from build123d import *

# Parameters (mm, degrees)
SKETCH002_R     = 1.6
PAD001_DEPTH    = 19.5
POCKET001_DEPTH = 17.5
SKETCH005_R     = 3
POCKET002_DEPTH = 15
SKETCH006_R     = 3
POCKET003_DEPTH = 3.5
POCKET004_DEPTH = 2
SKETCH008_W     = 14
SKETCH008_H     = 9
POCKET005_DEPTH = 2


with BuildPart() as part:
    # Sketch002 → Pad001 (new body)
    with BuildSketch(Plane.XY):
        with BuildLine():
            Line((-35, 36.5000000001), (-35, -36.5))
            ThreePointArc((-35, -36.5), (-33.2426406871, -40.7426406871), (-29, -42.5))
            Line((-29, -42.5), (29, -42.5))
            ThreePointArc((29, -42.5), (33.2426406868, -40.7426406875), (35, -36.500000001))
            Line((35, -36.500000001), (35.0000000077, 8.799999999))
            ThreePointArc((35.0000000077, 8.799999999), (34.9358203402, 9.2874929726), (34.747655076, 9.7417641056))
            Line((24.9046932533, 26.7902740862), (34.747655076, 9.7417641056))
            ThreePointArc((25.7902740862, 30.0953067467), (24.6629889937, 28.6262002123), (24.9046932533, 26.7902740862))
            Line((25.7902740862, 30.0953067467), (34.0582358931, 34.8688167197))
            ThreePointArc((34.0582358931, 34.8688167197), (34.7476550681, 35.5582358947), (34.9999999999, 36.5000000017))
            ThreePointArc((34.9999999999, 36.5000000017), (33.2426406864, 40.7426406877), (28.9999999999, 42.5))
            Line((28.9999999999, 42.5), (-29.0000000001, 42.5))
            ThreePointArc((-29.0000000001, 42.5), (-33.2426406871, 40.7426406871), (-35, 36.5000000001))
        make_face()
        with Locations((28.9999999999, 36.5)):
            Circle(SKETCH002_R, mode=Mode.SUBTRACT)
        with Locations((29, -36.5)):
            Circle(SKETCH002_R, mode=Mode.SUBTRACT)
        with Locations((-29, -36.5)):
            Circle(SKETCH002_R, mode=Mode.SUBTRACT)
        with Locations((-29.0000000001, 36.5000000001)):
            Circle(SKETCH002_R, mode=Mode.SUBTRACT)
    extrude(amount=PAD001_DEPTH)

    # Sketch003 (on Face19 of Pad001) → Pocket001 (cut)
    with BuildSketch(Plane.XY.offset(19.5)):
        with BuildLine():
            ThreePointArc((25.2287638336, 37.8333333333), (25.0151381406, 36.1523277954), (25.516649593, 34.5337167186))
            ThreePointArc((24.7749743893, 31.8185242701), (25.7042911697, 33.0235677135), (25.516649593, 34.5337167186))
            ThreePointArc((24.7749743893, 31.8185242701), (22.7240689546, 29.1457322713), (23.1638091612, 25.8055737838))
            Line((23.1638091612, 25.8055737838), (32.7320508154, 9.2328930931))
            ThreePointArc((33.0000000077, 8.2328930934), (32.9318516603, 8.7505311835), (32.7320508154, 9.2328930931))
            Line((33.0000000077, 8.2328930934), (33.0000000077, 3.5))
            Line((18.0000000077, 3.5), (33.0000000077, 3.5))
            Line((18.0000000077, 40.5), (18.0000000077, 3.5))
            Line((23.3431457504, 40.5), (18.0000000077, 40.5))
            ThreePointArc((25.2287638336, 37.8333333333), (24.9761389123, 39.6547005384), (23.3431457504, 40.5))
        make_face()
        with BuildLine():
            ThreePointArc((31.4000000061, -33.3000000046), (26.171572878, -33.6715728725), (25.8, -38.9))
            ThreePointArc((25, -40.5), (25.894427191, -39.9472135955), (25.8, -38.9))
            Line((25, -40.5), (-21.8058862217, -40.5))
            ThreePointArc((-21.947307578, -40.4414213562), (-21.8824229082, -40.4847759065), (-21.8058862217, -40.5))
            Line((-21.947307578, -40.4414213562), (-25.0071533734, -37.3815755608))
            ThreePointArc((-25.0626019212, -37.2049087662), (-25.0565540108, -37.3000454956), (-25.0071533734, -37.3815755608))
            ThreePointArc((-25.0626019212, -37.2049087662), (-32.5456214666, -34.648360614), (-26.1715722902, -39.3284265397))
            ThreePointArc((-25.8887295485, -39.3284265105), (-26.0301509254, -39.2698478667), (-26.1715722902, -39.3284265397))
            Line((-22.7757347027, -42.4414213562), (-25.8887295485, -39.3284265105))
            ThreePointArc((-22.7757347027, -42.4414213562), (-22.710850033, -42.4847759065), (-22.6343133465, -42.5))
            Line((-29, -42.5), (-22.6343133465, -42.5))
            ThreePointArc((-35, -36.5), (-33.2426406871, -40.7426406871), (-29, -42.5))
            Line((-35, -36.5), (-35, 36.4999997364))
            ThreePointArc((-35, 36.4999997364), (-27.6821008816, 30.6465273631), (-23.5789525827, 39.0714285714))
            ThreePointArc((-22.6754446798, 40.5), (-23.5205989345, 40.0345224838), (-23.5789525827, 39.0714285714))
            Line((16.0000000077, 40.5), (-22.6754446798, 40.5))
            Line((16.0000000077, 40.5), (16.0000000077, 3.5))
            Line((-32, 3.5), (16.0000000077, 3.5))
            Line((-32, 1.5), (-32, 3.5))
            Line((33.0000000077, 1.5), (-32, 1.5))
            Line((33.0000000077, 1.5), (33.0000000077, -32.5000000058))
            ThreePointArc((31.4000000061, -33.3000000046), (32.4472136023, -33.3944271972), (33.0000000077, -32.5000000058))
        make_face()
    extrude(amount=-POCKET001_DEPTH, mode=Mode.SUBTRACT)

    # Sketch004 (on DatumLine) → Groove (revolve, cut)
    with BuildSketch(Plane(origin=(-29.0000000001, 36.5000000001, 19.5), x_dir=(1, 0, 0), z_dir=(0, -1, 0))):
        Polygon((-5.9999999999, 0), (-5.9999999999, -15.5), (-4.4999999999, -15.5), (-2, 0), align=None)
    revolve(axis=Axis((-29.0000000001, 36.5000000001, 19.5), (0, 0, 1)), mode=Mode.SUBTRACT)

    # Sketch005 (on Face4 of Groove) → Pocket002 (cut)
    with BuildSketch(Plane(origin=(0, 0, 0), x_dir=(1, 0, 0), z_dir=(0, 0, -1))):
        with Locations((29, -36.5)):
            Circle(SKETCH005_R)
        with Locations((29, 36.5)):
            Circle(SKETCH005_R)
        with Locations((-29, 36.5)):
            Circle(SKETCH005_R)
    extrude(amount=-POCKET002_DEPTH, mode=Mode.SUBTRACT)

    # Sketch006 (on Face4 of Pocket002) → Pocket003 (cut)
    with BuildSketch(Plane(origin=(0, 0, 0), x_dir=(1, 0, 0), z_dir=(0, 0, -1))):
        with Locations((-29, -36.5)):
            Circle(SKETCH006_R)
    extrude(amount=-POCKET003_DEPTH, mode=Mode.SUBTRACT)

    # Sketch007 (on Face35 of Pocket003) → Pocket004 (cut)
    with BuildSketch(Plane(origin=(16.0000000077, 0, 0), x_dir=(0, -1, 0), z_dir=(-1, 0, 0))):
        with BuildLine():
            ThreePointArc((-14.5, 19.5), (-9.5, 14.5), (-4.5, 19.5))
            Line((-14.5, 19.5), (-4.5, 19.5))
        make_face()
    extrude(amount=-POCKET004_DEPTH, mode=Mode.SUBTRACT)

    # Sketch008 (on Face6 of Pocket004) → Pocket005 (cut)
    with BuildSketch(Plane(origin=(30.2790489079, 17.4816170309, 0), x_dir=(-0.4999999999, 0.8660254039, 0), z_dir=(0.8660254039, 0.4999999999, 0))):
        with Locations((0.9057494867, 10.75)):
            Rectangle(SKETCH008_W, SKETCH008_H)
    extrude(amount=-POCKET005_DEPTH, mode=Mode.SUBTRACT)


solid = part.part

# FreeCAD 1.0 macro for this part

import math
import FreeCAD as App
import Part
import Sketcher

V = App.Vector
Q = App.Units.Quantity

doc = App.newDocument("Part")
body = doc.addObject("PartDesign::Body", "Body")

# Sketch on XY plane
sketch1 = body.newObject("Sketcher::SketchObject", "Sketch")
sketch1.AttachmentSupport = (doc.getObject("XY_Plane"), [""])
sketch1.MapMode = "FlatFace"
sketch1.addGeometry([
    Part.LineSegment(V(-35, 36.5, 0), V(-35, -36.5, 0)),  # 0
    Part.ArcOfCircle(Part.Circle(V(-29, -36.5, 0), V(0, 0, 1), 6), math.radians(180), math.radians(270)),  # 1
    Part.LineSegment(V(-29, -42.5, 0), V(29, -42.5, 0)),  # 2
    Part.ArcOfCircle(Part.Circle(V(29, -36.5, 0), V(0, 0, 1), 6), math.radians(-90), math.radians(0)),  # 3
    Part.LineSegment(V(35, -36.5, 0), V(35, 8.8, 0)),  # 4
    Part.ArcOfCircle(Part.Circle(V(33.1, 8.8, 0), V(0, 0, 1), 1.9), math.radians(0), math.radians(30)),  # 5
    Part.LineSegment(V(34.7, 9.7, 0), V(24.9, 26.8, 0)),  # 6
    Part.ArcOfCircle(Part.Circle(V(27, 28, 0), V(0, 0, 1), 2.4), math.radians(120), math.radians(210)),  # 7
    Part.LineSegment(V(25.8, 30.1, 0), V(34.1, 34.9, 0)),  # 8
    Part.ArcOfCircle(Part.Circle(V(33.1, 36.5, 0), V(0, 0, 1), 1.9), math.radians(-60), math.radians(0)),  # 9
    Part.ArcOfCircle(Part.Circle(V(29, 36.5, 0), V(0, 0, 1), 6), math.radians(0), math.radians(90)),  # 10
    Part.LineSegment(V(29, 42.5, 0), V(-29, 42.5, 0)),  # 11
    Part.ArcOfCircle(Part.Circle(V(-29, 36.5, 0), V(0, 0, 1), 6), math.radians(90), math.radians(180)),  # 12
    Part.Circle(V(-29, -36.5, 0), V(0, 0, 1), 1.6),  # 13
    Part.Circle(V(29, -36.5, 0), V(0, 0, 1), 1.6),  # 14
    Part.Circle(V(-29, 36.5, 0), V(0, 0, 1), 1.6),  # 15
    Part.Circle(V(29, 36.5, 0), V(0, 0, 1), 1.6),  # 16
], False)
sketch1.addConstraint([
    Sketcher.Constraint("Tangent", 0, 2, 1, 1),
    Sketcher.Constraint("Tangent", 1, 2, 2, 1),
    Sketcher.Constraint("Tangent", 2, 2, 3, 1),
    Sketcher.Constraint("Tangent", 3, 2, 4, 1),
    Sketcher.Constraint("Tangent", 4, 2, 5, 1),
    Sketcher.Constraint("Tangent", 5, 2, 6, 1),
    Sketcher.Constraint("Tangent", 6, 2, 7, 2),
    Sketcher.Constraint("Tangent", 7, 1, 8, 1),
    Sketcher.Constraint("Tangent", 8, 2, 9, 1),
    Sketcher.Constraint("Tangent", 9, 2, 10, 1),
    Sketcher.Constraint("Tangent", 10, 2, 11, 1),
    Sketcher.Constraint("Tangent", 11, 2, 12, 1),
    Sketcher.Constraint("Tangent", 12, 2, 0, 1),
    Sketcher.Constraint("Vertical", 0),
    Sketcher.Constraint("Horizontal", 2),
    Sketcher.Constraint("Vertical", 4),
    Sketcher.Constraint("Horizontal", 11),
    Sketcher.Constraint("Coincident", 13, 3, 1, 3),
    Sketcher.Constraint("Coincident", 14, 3, 3, 3),
    Sketcher.Constraint("Coincident", 15, 3, 12, 3),
    Sketcher.Constraint("Coincident", 16, 3, 10, 3),
    Sketcher.Constraint("Equal", 1, 3),
    Sketcher.Constraint("Equal", 5, 9),
    Sketcher.Constraint("Equal", 3, 10),
    Sketcher.Constraint("Equal", 10, 12),
    Sketcher.Constraint("Equal", 13, 14),
    Sketcher.Constraint("Equal", 14, 15),
    Sketcher.Constraint("Equal", 15, 16),
    Sketcher.Constraint("Symmetric", 1, 3, 10, 3, -1, 1),
    Sketcher.Constraint("Symmetric", 3, 2, 9, 2, -1),
    Sketcher.Constraint("Perpendicular", 6, 8),
    Sketcher.Constraint("Radius", 1, Q("6 mm")),
    Sketcher.Constraint("Diameter", 13, Q("3.2 mm")),
    Sketcher.Constraint("DistanceX", 2, 1, 2, 2, Q("58 mm")),
    Sketcher.Constraint("DistanceY", 0, 2, 0, 1, Q("73 mm")),
    Sketcher.Constraint("Angle", 6, Q("120 deg")),
    Sketcher.Constraint("DistanceY", 4, 1, 4, 2, Q("45.3 mm")),
    Sketcher.Constraint("DistanceX", -1, 1, 7, 3, Q("27 mm")),
    Sketcher.Constraint("DistanceY", -1, 1, 7, 3, Q("28 mm")),
])
pad1 = body.newObject("PartDesign::Pad", "Pad")
pad1.Profile = sketch1
pad1.Length = 19.5

# Sketch on XY plane
sketch2 = body.newObject("Sketcher::SketchObject", "Sketch001")
sketch2.AttachmentSupport = (doc.getObject("XY_Plane"), [""])
sketch2.MapMode = "FlatFace"
sketch2.AttachmentOffset = App.Placement(V(0, 0, 19.5), App.Rotation())
sketch2.addGeometry([
    Part.ArcOfCircle(Part.Circle(V(29, 36.5, 0), V(0, 0, 1), 4), math.radians(160.528779), math.radians(209.443879)),  # 0
    Part.ArcOfCircle(Part.Circle(V(23.343146, 38.5, 0), V(0, 0, 1), 2), math.radians(-19.471221), math.radians(90)),  # 1
    Part.LineSegment(V(23.343146, 40.5, 0), V(18, 40.5, 0)),  # 2
    Part.LineSegment(V(18, 40.5, 0), V(18, 3.5, 0)),  # 3
    Part.LineSegment(V(18, 3.5, 0), V(33, 3.5, 0)),  # 4
    Part.LineSegment(V(33, 3.5, 0), V(33, 8.232893, 0)),  # 5
    Part.ArcOfCircle(Part.Circle(V(31, 8.232893, 0), V(0, 0, 1), 2), math.radians(0), math.radians(30)),  # 6
    Part.LineSegment(V(32.732051, 9.232893, 0), V(23.163809, 25.805574, 0)),  # 7
    Part.ArcOfCircle(Part.Circle(V(26.975867, 28.006466, 0), V(0, 0, 1), 4.401785), math.radians(120), math.radians(210)),  # 8
    Part.ArcOfCircle(Part.Circle(V(23.774974, 33.550575, 0), V(0, 0, 1), 2), math.radians(-60), math.radians(29.443879)),  # 9
    Part.ArcOfCircle(Part.Circle(V(29, -36.5, 0), V(0, 0, 1), 4), math.radians(53.130102), math.radians(216.869898)),  # 10
    Part.ArcOfCircle(Part.Circle(V(32, -32.5, 0), V(0, 0, 1), 1), math.radians(-126.869898), math.radians(0)),  # 11
    Part.LineSegment(V(33, -32.5, 0), V(33, 1.5, 0)),  # 12
    Part.LineSegment(V(33, 1.5, 0), V(-32, 1.5, 0)),  # 13
    Part.LineSegment(V(-32, 1.5, 0), V(-32, 3.5, 0)),  # 14
    Part.LineSegment(V(-32, 3.5, 0), V(16, 3.5, 0)),  # 15
    Part.LineSegment(V(16, 3.5, 0), V(16, 40.5, 0)),  # 16
    Part.LineSegment(V(16, 40.5, 0), V(-22.675445, 40.5, 0)),  # 17
    Part.ArcOfCircle(Part.Circle(V(-22.675445, 39.5, 0), V(0, 0, 1), 1), math.radians(90), math.radians(205.376934)),  # 18
    Part.ArcOfCircle(Part.Circle(V(-29, 36.5, 0), V(0, 0, 1), 6), math.radians(-179.999997), math.radians(25.376934)),  # 19
    Part.LineSegment(V(-35, 36.5, 0), V(-35, -36.5, 0)),  # 20
    Part.ArcOfCircle(Part.Circle(V(-29, -36.5, 0), V(0, 0, 1), 6), math.radians(180), math.radians(270)),  # 21
    Part.LineSegment(V(-29, -42.5, 0), V(-22.634313, -42.5, 0)),  # 22
    Part.ArcOfCircle(Part.Circle(V(-22.634313, -42.3, 0), V(0, 0, 1), 0.2), math.radians(-135), math.radians(-90)),  # 23
    Part.LineSegment(V(-22.775735, -42.441421, 0), V(-25.88873, -39.328427, 0)),  # 24
    Part.ArcOfCircle(Part.Circle(V(-26.030151, -39.469848, 0), V(0, 0, 1), 0.2), math.radians(45), math.radians(135.000012)),  # 25
    Part.ArcOfCircle(Part.Circle(V(-29, -36.5, 0), V(0, 0, 1), 4), math.radians(-10.150081), math.radians(315.000012)),  # 26
    Part.ArcOfCircle(Part.Circle(V(-24.865732, -37.240154, 0), V(0, 0, 1), 0.2), math.radians(169.849919), math.radians(225)),  # 27
    Part.LineSegment(V(-25.007153, -37.381576, 0), V(-21.947308, -40.441421, 0)),  # 28
    Part.ArcOfCircle(Part.Circle(V(-21.805886, -40.3, 0), V(0, 0, 1), 0.2), math.radians(-135), math.radians(-90)),  # 29
    Part.LineSegment(V(-21.805886, -40.5, 0), V(25, -40.5, 0)),  # 30
    Part.ArcOfCircle(Part.Circle(V(25, -39.5, 0), V(0, 0, 1), 1), math.radians(-90), math.radians(36.869898)),  # 31
], False)
sketch2.addConstraint([
    Sketcher.Constraint("Coincident", 0, 1, 1, 1),
    Sketcher.Constraint("Coincident", 1, 2, 2, 1),
    Sketcher.Constraint("Coincident", 2, 2, 3, 1),
    Sketcher.Constraint("Coincident", 3, 2, 4, 1),
    Sketcher.Constraint("Coincident", 4, 2, 5, 1),
    Sketcher.Constraint("Coincident", 5, 2, 6, 1),
    Sketcher.Constraint("Coincident", 6, 2, 7, 1),
    Sketcher.Constraint("Coincident", 7, 2, 8, 2),
    Sketcher.Constraint("Coincident", 8, 1, 9, 1),
    Sketcher.Constraint("Coincident", 9, 2, 0, 2),
    Sketcher.Constraint("Coincident", 10, 1, 11, 1),
    Sketcher.Constraint("Coincident", 11, 2, 12, 1),
    Sketcher.Constraint("Coincident", 12, 2, 13, 1),
    Sketcher.Constraint("Coincident", 13, 2, 14, 1),
    Sketcher.Constraint("Coincident", 14, 2, 15, 1),
    Sketcher.Constraint("Coincident", 15, 2, 16, 1),
    Sketcher.Constraint("Coincident", 16, 2, 17, 1),
    Sketcher.Constraint("Coincident", 17, 2, 18, 1),
    Sketcher.Constraint("Coincident", 18, 2, 19, 2),
    Sketcher.Constraint("Coincident", 19, 1, 20, 1),
    Sketcher.Constraint("Coincident", 20, 2, 21, 1),
    Sketcher.Constraint("Coincident", 21, 2, 22, 1),
    Sketcher.Constraint("Coincident", 22, 2, 23, 2),
    Sketcher.Constraint("Coincident", 23, 1, 24, 1),
    Sketcher.Constraint("Coincident", 24, 2, 25, 1),
    Sketcher.Constraint("Coincident", 25, 2, 26, 2),
    Sketcher.Constraint("Coincident", 26, 1, 27, 1),
    Sketcher.Constraint("Coincident", 27, 2, 28, 1),
    Sketcher.Constraint("Coincident", 28, 2, 29, 1),
    Sketcher.Constraint("Coincident", 29, 2, 30, 1),
    Sketcher.Constraint("Coincident", 30, 2, 31, 1),
    Sketcher.Constraint("Coincident", 31, 2, 10, 2),
    Sketcher.Constraint("Horizontal", 2),
    Sketcher.Constraint("Vertical", 3),
    Sketcher.Constraint("Horizontal", 4),
    Sketcher.Constraint("Vertical", 5),
    Sketcher.Constraint("Vertical", 12),
    Sketcher.Constraint("Horizontal", 13),
    Sketcher.Constraint("Vertical", 14),
    Sketcher.Constraint("Horizontal", 15),
    Sketcher.Constraint("Vertical", 16),
    Sketcher.Constraint("Horizontal", 17),
    Sketcher.Constraint("Vertical", 20),
    Sketcher.Constraint("Horizontal", 22),
    Sketcher.Constraint("Horizontal", 30),
    Sketcher.Constraint("Coincident", 26, 3, 21, 3),
    Sketcher.Constraint("Radius", 0, Q("4 mm")),
    Sketcher.Constraint("Radius", 1, Q("2 mm")),
    Sketcher.Constraint("Radius", 6, Q("2 mm")),
    Sketcher.Constraint("Radius", 9, Q("2 mm")),
    Sketcher.Constraint("Radius", 10, Q("4 mm")),
    Sketcher.Constraint("Radius", 11, Q("1 mm")),
    Sketcher.Constraint("Radius", 18, Q("1 mm")),
    Sketcher.Constraint("Radius", 19, Q("6 mm")),
    Sketcher.Constraint("Radius", 21, Q("6 mm")),
    Sketcher.Constraint("Radius", 26, Q("4 mm")),
    Sketcher.Constraint("Radius", 31, Q("1 mm")),
    Sketcher.Constraint("Radius", 23, Q("0.2 mm")),
    Sketcher.Constraint("Radius", 25, Q("0.2 mm")),
    Sketcher.Constraint("Radius", 27, Q("0.2 mm")),
    Sketcher.Constraint("Radius", 29, Q("0.2 mm")),
    Sketcher.Constraint("DistanceX", 4, 1, 4, 2, Q("15 mm")),
    Sketcher.Constraint("DistanceX", 13, 2, 13, 1, Q("65 mm")),
    Sketcher.Constraint("DistanceX", 15, 1, 15, 2, Q("48 mm")),
    Sketcher.Constraint("DistanceY", 3, 2, 3, 1, Q("37 mm")),
    Sketcher.Constraint("DistanceY", 12, 1, 12, 2, Q("34 mm")),
    Sketcher.Constraint("DistanceY", 14, 1, 14, 2, Q("2 mm")),
    Sketcher.Constraint("DistanceY", 16, 1, 16, 2, Q("37 mm")),
    Sketcher.Constraint("DistanceY", 20, 2, 20, 1, Q("73 mm")),
    Sketcher.Constraint("DistanceX", -1, 1, 0, 3, Q("29 mm")),
    Sketcher.Constraint("DistanceX", -1, 1, 6, 3, Q("31 mm")),
    Sketcher.Constraint("DistanceX", -1, 1, 10, 3, Q("29 mm")),
    Sketcher.Constraint("DistanceX", -1, 1, 11, 3, Q("32 mm")),
    Sketcher.Constraint("DistanceX", 19, 3, -1, 1, Q("29 mm")),
    Sketcher.Constraint("DistanceX", -1, 1, 31, 3, Q("25 mm")),
    Sketcher.Constraint("DistanceX", 21, 2, -1, 1, Q("29 mm")),
    Sketcher.Constraint("DistanceX", -1, 1, 30, 2, Q("25 mm")),
    Sketcher.Constraint("DistanceY", 0, 3, 1, 3, Q("2 mm")),
    Sketcher.Constraint("DistanceY", 10, 3, 0, 3, Q("73 mm")),
    Sketcher.Constraint("DistanceY", 1, 3, 18, 3, Q("1 mm")),
    Sketcher.Constraint("DistanceY", 19, 3, 18, 3, Q("3 mm")),
    Sketcher.Constraint("DistanceY", 21, 3, 11, 3, Q("4 mm")),
    Sketcher.Constraint("DistanceY", 5, 2, 6, 2, Q("1 mm")),
    Sketcher.Constraint("DistanceY", 6, 3, 6, 2, Q("1 mm")),
    Sketcher.Constraint("DistanceX", 9, 3, 8, 1, Q("1 mm")),
    Sketcher.Constraint("DistanceY", 19, 1, 18, 3, Q("3 mm")),
    Sketcher.Constraint("DistanceY", 23, 1, 28, 2, Q("2 mm")),
    Sketcher.Constraint("DistanceY", -1, 1, 0, 3, Q("36.5 mm")),
    Sketcher.Constraint("DistanceX", -1, 1, 10, 1, Q("31.4 mm")),
    Sketcher.Constraint("DistanceX", -1, 1, 31, 2, Q("25.8 mm")),
    Sketcher.Constraint("Radius", 8, Q("4.401785 mm")),
    Sketcher.Constraint("DistanceY", 7, 2, 9, 3, Q("7.745001 mm")),
    Sketcher.Constraint("DistanceX", 26, 1, -1, 1, Q("25.062602 mm")),
    Sketcher.Constraint("Distance", 24, Q("4.40244 mm")),
    Sketcher.Constraint("DistanceX", 2, 2, 2, 1, Q("5.343146 mm")),
    Sketcher.Constraint("DistanceX", 17, 2, 17, 1, Q("38.675445 mm")),
    Sketcher.Constraint("DistanceX", 22, 1, 22, 2, Q("6.365687 mm")),
    Sketcher.Constraint("DistanceX", 30, 1, 30, 2, Q("46.805886 mm")),
    Sketcher.Constraint("DistanceY", 5, 1, 5, 2, Q("4.732893 mm")),
    Sketcher.Constraint("DistanceX", 25, 3, -1, 1, Q("26.030151 mm")),
    Sketcher.Constraint("DistanceX", -1, 1, 7, 2, Q("23.163809 mm")),
    Sketcher.Constraint("DistanceX", -1, 1, 9, 2, Q("25.51665 mm")),
    Sketcher.Constraint("DistanceY", -1, 1, 18, 2, Q("39.071429 mm")),
    Sketcher.Constraint("DistanceY", 23, 1, -1, 1, Q("42.441421 mm")),
    Sketcher.Constraint("DistanceX", 24, 2, -1, 1, Q("25.88873 mm")),
    Sketcher.Constraint("DistanceX", 1, 3, 8, 3, Q("3.632721 mm")),
    Sketcher.Constraint("DistanceX", 25, 3, 27, 3, Q("1.164419 mm")),
    Sketcher.Constraint("DistanceX", 1, 3, 0, 1, Q("1.885618 mm")),
    Sketcher.Constraint("DistanceX", 23, 1, 29, 3, Q("0.969848 mm")),
    Sketcher.Constraint("DistanceX", 25, 2, 25, 3, Q("0.141421 mm")),
    Sketcher.Constraint("DistanceX", 26, 1, 27, 2, Q("0.055449 mm")),
])
pocket1 = body.newObject("PartDesign::Pocket", "Pocket")
pocket1.Profile = sketch2
pocket1.Length = 17.5

# Sketch on XZ plane
sketch3 = body.newObject("Sketcher::SketchObject", "Sketch002")
sketch3.AttachmentSupport = (doc.getObject("XZ_Plane"), [""])
sketch3.MapMode = "FlatFace"
sketch3.AttachmentOffset = App.Placement(V(0, 0, -36.5), App.Rotation())
sketch3.addGeometry([
    Part.LineSegment(V(-35, 19.5, 0), V(-35, 4, 0)),
    Part.LineSegment(V(-35, 4, 0), V(-33.5, 4, 0)),
    Part.LineSegment(V(-33.5, 4, 0), V(-31, 19.5, 0)),
    Part.LineSegment(V(-31, 19.5, 0), V(-35, 19.5, 0)),
], False)
sketch3.addGeometry(Part.LineSegment(V(-29, 4, 0), V(-29, 19.5, 0)), True)  # axis
sketch3.addConstraint([
    Sketcher.Constraint("Coincident", 0, 2, 1, 1),
    Sketcher.Constraint("Coincident", 1, 2, 2, 1),
    Sketcher.Constraint("Coincident", 2, 2, 3, 1),
    Sketcher.Constraint("Coincident", 3, 2, 0, 1),
    Sketcher.Constraint("Vertical", 0),
    Sketcher.Constraint("Horizontal", 1),
    Sketcher.Constraint("Horizontal", 3),
    Sketcher.Constraint("Vertical", 4),
    Sketcher.Constraint("Horizontal", 1, 2, 4, 1),
    Sketcher.Constraint("Horizontal", 3, 2, 4, 2),
    Sketcher.Constraint("DistanceX", 3, 2, 3, 1, Q("4 mm")),
    Sketcher.Constraint("DistanceX", 1, 1, 1, 2, Q("1.5 mm")),
    Sketcher.Constraint("DistanceY", 0, 2, 0, 1, Q("15.5 mm")),
    Sketcher.Constraint("DistanceX", 0, 2, -1, 1, Q("35 mm")),
    Sketcher.Constraint("DistanceY", -1, 1, 0, 2, Q("4 mm")),
    Sketcher.Constraint("DistanceX", 4, 1, -1, 1, Q("29 mm")),
])
groove = body.newObject("PartDesign::Groove", "Groove")
groove.Profile = sketch3
groove.ReferenceAxis = (sketch3, ["Axis0"])
groove.Angle = 360

# Sketch on XY plane
sketch4 = body.newObject("Sketcher::SketchObject", "Sketch003")
sketch4.AttachmentSupport = (doc.getObject("XY_Plane"), [""])
sketch4.MapMode = "FlatFace"
sketch4.addGeometry([
    Part.Circle(V(29, 36.5, 0), V(0, 0, 1), 3),
    Part.Circle(V(29, -36.5, 0), V(0, 0, 1), 3),
    Part.Circle(V(-29, -36.5, 0), V(0, 0, 1), 3),
], False)
sketch4.addConstraint([
    Sketcher.Constraint("Equal", 0, 1),
    Sketcher.Constraint("Equal", 1, 2),
    Sketcher.Constraint("Symmetric", 0, 3, 2, 3, -1, 1),
    Sketcher.Constraint("Symmetric", 1, 3, 2, 3, -2),
    Sketcher.Constraint("Diameter", 0, Q("6 mm")),
    Sketcher.Constraint("DistanceX", -1, 1, 0, 3, Q("29 mm")),
    Sketcher.Constraint("DistanceY", 1, 3, 0, 3, Q("73 mm")),
])
pocket2 = body.newObject("PartDesign::Pocket", "Pocket001")
pocket2.Profile = sketch4
pocket2.Length = 15
pocket2.Reversed = True

# Sketch on XY plane
sketch5 = body.newObject("Sketcher::SketchObject", "Sketch004")
sketch5.AttachmentSupport = (doc.getObject("XY_Plane"), [""])
sketch5.MapMode = "FlatFace"
sketch5.addGeometry(Part.Circle(V(-29, 36.5, 0), V(0, 0, 1), 3), False)
sketch5.addConstraint([
    Sketcher.Constraint("Diameter", 0, Q("6 mm")),
    Sketcher.Constraint("DistanceX", 0, 3, -1, 1, Q("29 mm")),
    Sketcher.Constraint("DistanceY", -1, 1, 0, 3, Q("36.5 mm")),
])
pocket3 = body.newObject("PartDesign::Pocket", "Pocket002")
pocket3.Profile = sketch5
pocket3.Length = 3.5
pocket3.Reversed = True

# Sketch on YZ plane
sketch6 = body.newObject("Sketcher::SketchObject", "Sketch005")
sketch6.AttachmentSupport = (doc.getObject("YZ_Plane"), [""])
sketch6.MapMode = "FlatFace"
sketch6.AttachmentOffset = App.Placement(V(0, 0, 16), App.Rotation())
sketch6.addGeometry([
    Part.ArcOfCircle(Part.Circle(V(10, 20, 0), V(0, 0, 1), 5), math.radians(180), math.radians(360)),
    Part.LineSegment(V(4, 20, 0), V(14, 20, 0)),
], False)
sketch6.addConstraint([
    Sketcher.Constraint("Coincident", 0, 1, 1, 1),
    Sketcher.Constraint("Coincident", 1, 2, 0, 2),
    Sketcher.Constraint("Horizontal", 1),
    Sketcher.Constraint("Radius", 0, Q("5 mm")),
    Sketcher.Constraint("DistanceX", -1, 1, 0, 3, Q("9.5 mm")),
    Sketcher.Constraint("DistanceY", -1, 1, 0, 3, Q("19.5 mm")),
    Sketcher.Constraint("DistanceY", -1, 1, 0, 1, Q("19.5 mm")),
])
pocket4 = body.newObject("PartDesign::Pocket", "Pocket003")
pocket4.Profile = sketch6
pocket4.Length = 2
pocket4.Reversed = True

# Sketch on an angled plane
sketch7 = body.newObject("Sketcher::SketchObject", "Sketch006")
sketch7.Placement = App.Placement(V(30.279049, 17.481617, 0), App.Rotation(V(-0.5, 0.866025404, 0), V(0, 0, 1), V(0.866025404, 0.5, 0), "ZXY"))
sketch7.addGeometry([
    Part.LineSegment(V(-6, 15, 0), V(-6, 6, 0)),
    Part.LineSegment(V(-6, 6, 0), V(8, 6, 0)),
    Part.LineSegment(V(8, 6, 0), V(8, 15, 0)),
    Part.LineSegment(V(8, 15, 0), V(-6, 15, 0)),
], False)
sketch7.addConstraint([
    Sketcher.Constraint("Coincident", 0, 2, 1, 1),
    Sketcher.Constraint("Coincident", 1, 2, 2, 1),
    Sketcher.Constraint("Coincident", 2, 2, 3, 1),
    Sketcher.Constraint("Coincident", 3, 2, 0, 1),
    Sketcher.Constraint("Vertical", 0),
    Sketcher.Constraint("Horizontal", 1),
    Sketcher.Constraint("Vertical", 2),
    Sketcher.Constraint("Horizontal", 3),
    Sketcher.Constraint("DistanceX", 1, 1, 1, 2, Q("14 mm")),
    Sketcher.Constraint("DistanceY", 0, 2, 0, 1, Q("9 mm")),
    Sketcher.Constraint("DistanceY", -1, 1, 0, 2, Q("6.25 mm")),
    Sketcher.Constraint("DistanceX", 0, 2, -1, 1, Q("6.094251 mm")),
])
pocket5 = body.newObject("PartDesign::Pocket", "Pocket004")
pocket5.Profile = sketch7
pocket5.Length = 2

doc.recompute()
